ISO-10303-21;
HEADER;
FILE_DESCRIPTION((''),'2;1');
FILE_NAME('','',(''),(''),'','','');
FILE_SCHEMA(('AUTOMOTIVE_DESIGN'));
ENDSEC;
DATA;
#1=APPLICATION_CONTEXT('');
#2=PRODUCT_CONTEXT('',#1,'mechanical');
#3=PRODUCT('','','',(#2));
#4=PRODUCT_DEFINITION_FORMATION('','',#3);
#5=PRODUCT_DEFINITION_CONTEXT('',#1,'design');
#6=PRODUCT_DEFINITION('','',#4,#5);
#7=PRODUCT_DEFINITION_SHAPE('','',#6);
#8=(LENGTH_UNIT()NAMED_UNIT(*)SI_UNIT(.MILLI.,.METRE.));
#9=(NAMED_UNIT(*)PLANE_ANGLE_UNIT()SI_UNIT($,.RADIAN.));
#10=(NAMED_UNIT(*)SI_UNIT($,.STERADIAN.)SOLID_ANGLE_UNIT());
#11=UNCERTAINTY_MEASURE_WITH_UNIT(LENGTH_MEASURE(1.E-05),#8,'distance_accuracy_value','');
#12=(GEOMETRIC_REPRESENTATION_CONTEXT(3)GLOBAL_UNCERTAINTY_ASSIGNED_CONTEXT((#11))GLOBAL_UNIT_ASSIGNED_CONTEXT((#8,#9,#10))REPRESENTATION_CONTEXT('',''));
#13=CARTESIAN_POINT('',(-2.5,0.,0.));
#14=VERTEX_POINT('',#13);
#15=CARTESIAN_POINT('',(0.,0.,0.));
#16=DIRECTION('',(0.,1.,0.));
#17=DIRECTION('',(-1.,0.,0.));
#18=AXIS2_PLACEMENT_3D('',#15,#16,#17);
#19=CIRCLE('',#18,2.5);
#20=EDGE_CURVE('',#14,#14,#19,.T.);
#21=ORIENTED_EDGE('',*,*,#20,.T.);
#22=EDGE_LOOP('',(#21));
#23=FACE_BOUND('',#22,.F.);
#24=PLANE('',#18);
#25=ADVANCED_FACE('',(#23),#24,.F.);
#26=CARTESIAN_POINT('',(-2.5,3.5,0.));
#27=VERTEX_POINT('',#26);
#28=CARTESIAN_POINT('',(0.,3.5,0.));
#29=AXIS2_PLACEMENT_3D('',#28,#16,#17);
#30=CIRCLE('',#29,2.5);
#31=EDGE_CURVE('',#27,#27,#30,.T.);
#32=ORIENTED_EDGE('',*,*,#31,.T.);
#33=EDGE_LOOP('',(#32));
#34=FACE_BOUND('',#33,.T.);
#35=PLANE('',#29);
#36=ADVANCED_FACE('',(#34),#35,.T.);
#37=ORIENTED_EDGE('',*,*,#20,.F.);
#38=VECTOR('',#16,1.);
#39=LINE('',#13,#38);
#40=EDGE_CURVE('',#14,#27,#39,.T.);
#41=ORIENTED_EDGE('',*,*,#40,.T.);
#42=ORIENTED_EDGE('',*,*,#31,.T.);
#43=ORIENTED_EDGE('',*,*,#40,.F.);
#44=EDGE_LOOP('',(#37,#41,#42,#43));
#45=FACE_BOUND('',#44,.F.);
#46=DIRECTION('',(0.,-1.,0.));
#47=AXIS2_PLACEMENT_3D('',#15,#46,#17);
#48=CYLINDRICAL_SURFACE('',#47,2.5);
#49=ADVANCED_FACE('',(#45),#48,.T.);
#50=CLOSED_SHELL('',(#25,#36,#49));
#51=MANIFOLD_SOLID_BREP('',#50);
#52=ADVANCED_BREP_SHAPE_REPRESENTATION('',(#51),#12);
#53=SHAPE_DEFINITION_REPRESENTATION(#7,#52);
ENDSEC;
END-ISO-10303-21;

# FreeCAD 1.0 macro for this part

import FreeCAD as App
import Part
import Sketcher

doc = App.newDocument("Part")
params = doc.addObject("Spreadsheet::Sheet", "Params")
for row, (alias, value) in enumerate([
    ("sketch1_diameter", "5 mm"),
    ("pad1_length", "3.5 mm"),
], start=1):
    params.set(f"A{row}", alias)
    params.set(f"B{row}", "=" + value)
    params.setAlias(f"B{row}", alias)

body = doc.addObject("PartDesign::Body", "Body")

sketch1 = body.newObject("Sketcher::SketchObject", "Sketch")
sketch1.AttachmentSupport = (doc.getObject("XZ_Plane"), [""])
sketch1.MapMode = "FlatFace"
sketch1.addGeometry(Part.Circle(App.Vector(0, 0, 0), App.Vector(0, 0, 1), 2.5), False)
sketch1.addConstraint([
    Sketcher.Constraint("Coincident", 0, 3, -1, 1),
    Sketcher.Constraint("Diameter", 0, 5.0),
])
sketch1.setExpression("Constraints[1]", "Params.sketch1_diameter")
pad1 = body.newObject("PartDesign::Pad", "Pad")
pad1.Profile = sketch1
pad1.setExpression("Length", "Params.pad1_length")
pad1.Reversed = True

doc.recompute()
